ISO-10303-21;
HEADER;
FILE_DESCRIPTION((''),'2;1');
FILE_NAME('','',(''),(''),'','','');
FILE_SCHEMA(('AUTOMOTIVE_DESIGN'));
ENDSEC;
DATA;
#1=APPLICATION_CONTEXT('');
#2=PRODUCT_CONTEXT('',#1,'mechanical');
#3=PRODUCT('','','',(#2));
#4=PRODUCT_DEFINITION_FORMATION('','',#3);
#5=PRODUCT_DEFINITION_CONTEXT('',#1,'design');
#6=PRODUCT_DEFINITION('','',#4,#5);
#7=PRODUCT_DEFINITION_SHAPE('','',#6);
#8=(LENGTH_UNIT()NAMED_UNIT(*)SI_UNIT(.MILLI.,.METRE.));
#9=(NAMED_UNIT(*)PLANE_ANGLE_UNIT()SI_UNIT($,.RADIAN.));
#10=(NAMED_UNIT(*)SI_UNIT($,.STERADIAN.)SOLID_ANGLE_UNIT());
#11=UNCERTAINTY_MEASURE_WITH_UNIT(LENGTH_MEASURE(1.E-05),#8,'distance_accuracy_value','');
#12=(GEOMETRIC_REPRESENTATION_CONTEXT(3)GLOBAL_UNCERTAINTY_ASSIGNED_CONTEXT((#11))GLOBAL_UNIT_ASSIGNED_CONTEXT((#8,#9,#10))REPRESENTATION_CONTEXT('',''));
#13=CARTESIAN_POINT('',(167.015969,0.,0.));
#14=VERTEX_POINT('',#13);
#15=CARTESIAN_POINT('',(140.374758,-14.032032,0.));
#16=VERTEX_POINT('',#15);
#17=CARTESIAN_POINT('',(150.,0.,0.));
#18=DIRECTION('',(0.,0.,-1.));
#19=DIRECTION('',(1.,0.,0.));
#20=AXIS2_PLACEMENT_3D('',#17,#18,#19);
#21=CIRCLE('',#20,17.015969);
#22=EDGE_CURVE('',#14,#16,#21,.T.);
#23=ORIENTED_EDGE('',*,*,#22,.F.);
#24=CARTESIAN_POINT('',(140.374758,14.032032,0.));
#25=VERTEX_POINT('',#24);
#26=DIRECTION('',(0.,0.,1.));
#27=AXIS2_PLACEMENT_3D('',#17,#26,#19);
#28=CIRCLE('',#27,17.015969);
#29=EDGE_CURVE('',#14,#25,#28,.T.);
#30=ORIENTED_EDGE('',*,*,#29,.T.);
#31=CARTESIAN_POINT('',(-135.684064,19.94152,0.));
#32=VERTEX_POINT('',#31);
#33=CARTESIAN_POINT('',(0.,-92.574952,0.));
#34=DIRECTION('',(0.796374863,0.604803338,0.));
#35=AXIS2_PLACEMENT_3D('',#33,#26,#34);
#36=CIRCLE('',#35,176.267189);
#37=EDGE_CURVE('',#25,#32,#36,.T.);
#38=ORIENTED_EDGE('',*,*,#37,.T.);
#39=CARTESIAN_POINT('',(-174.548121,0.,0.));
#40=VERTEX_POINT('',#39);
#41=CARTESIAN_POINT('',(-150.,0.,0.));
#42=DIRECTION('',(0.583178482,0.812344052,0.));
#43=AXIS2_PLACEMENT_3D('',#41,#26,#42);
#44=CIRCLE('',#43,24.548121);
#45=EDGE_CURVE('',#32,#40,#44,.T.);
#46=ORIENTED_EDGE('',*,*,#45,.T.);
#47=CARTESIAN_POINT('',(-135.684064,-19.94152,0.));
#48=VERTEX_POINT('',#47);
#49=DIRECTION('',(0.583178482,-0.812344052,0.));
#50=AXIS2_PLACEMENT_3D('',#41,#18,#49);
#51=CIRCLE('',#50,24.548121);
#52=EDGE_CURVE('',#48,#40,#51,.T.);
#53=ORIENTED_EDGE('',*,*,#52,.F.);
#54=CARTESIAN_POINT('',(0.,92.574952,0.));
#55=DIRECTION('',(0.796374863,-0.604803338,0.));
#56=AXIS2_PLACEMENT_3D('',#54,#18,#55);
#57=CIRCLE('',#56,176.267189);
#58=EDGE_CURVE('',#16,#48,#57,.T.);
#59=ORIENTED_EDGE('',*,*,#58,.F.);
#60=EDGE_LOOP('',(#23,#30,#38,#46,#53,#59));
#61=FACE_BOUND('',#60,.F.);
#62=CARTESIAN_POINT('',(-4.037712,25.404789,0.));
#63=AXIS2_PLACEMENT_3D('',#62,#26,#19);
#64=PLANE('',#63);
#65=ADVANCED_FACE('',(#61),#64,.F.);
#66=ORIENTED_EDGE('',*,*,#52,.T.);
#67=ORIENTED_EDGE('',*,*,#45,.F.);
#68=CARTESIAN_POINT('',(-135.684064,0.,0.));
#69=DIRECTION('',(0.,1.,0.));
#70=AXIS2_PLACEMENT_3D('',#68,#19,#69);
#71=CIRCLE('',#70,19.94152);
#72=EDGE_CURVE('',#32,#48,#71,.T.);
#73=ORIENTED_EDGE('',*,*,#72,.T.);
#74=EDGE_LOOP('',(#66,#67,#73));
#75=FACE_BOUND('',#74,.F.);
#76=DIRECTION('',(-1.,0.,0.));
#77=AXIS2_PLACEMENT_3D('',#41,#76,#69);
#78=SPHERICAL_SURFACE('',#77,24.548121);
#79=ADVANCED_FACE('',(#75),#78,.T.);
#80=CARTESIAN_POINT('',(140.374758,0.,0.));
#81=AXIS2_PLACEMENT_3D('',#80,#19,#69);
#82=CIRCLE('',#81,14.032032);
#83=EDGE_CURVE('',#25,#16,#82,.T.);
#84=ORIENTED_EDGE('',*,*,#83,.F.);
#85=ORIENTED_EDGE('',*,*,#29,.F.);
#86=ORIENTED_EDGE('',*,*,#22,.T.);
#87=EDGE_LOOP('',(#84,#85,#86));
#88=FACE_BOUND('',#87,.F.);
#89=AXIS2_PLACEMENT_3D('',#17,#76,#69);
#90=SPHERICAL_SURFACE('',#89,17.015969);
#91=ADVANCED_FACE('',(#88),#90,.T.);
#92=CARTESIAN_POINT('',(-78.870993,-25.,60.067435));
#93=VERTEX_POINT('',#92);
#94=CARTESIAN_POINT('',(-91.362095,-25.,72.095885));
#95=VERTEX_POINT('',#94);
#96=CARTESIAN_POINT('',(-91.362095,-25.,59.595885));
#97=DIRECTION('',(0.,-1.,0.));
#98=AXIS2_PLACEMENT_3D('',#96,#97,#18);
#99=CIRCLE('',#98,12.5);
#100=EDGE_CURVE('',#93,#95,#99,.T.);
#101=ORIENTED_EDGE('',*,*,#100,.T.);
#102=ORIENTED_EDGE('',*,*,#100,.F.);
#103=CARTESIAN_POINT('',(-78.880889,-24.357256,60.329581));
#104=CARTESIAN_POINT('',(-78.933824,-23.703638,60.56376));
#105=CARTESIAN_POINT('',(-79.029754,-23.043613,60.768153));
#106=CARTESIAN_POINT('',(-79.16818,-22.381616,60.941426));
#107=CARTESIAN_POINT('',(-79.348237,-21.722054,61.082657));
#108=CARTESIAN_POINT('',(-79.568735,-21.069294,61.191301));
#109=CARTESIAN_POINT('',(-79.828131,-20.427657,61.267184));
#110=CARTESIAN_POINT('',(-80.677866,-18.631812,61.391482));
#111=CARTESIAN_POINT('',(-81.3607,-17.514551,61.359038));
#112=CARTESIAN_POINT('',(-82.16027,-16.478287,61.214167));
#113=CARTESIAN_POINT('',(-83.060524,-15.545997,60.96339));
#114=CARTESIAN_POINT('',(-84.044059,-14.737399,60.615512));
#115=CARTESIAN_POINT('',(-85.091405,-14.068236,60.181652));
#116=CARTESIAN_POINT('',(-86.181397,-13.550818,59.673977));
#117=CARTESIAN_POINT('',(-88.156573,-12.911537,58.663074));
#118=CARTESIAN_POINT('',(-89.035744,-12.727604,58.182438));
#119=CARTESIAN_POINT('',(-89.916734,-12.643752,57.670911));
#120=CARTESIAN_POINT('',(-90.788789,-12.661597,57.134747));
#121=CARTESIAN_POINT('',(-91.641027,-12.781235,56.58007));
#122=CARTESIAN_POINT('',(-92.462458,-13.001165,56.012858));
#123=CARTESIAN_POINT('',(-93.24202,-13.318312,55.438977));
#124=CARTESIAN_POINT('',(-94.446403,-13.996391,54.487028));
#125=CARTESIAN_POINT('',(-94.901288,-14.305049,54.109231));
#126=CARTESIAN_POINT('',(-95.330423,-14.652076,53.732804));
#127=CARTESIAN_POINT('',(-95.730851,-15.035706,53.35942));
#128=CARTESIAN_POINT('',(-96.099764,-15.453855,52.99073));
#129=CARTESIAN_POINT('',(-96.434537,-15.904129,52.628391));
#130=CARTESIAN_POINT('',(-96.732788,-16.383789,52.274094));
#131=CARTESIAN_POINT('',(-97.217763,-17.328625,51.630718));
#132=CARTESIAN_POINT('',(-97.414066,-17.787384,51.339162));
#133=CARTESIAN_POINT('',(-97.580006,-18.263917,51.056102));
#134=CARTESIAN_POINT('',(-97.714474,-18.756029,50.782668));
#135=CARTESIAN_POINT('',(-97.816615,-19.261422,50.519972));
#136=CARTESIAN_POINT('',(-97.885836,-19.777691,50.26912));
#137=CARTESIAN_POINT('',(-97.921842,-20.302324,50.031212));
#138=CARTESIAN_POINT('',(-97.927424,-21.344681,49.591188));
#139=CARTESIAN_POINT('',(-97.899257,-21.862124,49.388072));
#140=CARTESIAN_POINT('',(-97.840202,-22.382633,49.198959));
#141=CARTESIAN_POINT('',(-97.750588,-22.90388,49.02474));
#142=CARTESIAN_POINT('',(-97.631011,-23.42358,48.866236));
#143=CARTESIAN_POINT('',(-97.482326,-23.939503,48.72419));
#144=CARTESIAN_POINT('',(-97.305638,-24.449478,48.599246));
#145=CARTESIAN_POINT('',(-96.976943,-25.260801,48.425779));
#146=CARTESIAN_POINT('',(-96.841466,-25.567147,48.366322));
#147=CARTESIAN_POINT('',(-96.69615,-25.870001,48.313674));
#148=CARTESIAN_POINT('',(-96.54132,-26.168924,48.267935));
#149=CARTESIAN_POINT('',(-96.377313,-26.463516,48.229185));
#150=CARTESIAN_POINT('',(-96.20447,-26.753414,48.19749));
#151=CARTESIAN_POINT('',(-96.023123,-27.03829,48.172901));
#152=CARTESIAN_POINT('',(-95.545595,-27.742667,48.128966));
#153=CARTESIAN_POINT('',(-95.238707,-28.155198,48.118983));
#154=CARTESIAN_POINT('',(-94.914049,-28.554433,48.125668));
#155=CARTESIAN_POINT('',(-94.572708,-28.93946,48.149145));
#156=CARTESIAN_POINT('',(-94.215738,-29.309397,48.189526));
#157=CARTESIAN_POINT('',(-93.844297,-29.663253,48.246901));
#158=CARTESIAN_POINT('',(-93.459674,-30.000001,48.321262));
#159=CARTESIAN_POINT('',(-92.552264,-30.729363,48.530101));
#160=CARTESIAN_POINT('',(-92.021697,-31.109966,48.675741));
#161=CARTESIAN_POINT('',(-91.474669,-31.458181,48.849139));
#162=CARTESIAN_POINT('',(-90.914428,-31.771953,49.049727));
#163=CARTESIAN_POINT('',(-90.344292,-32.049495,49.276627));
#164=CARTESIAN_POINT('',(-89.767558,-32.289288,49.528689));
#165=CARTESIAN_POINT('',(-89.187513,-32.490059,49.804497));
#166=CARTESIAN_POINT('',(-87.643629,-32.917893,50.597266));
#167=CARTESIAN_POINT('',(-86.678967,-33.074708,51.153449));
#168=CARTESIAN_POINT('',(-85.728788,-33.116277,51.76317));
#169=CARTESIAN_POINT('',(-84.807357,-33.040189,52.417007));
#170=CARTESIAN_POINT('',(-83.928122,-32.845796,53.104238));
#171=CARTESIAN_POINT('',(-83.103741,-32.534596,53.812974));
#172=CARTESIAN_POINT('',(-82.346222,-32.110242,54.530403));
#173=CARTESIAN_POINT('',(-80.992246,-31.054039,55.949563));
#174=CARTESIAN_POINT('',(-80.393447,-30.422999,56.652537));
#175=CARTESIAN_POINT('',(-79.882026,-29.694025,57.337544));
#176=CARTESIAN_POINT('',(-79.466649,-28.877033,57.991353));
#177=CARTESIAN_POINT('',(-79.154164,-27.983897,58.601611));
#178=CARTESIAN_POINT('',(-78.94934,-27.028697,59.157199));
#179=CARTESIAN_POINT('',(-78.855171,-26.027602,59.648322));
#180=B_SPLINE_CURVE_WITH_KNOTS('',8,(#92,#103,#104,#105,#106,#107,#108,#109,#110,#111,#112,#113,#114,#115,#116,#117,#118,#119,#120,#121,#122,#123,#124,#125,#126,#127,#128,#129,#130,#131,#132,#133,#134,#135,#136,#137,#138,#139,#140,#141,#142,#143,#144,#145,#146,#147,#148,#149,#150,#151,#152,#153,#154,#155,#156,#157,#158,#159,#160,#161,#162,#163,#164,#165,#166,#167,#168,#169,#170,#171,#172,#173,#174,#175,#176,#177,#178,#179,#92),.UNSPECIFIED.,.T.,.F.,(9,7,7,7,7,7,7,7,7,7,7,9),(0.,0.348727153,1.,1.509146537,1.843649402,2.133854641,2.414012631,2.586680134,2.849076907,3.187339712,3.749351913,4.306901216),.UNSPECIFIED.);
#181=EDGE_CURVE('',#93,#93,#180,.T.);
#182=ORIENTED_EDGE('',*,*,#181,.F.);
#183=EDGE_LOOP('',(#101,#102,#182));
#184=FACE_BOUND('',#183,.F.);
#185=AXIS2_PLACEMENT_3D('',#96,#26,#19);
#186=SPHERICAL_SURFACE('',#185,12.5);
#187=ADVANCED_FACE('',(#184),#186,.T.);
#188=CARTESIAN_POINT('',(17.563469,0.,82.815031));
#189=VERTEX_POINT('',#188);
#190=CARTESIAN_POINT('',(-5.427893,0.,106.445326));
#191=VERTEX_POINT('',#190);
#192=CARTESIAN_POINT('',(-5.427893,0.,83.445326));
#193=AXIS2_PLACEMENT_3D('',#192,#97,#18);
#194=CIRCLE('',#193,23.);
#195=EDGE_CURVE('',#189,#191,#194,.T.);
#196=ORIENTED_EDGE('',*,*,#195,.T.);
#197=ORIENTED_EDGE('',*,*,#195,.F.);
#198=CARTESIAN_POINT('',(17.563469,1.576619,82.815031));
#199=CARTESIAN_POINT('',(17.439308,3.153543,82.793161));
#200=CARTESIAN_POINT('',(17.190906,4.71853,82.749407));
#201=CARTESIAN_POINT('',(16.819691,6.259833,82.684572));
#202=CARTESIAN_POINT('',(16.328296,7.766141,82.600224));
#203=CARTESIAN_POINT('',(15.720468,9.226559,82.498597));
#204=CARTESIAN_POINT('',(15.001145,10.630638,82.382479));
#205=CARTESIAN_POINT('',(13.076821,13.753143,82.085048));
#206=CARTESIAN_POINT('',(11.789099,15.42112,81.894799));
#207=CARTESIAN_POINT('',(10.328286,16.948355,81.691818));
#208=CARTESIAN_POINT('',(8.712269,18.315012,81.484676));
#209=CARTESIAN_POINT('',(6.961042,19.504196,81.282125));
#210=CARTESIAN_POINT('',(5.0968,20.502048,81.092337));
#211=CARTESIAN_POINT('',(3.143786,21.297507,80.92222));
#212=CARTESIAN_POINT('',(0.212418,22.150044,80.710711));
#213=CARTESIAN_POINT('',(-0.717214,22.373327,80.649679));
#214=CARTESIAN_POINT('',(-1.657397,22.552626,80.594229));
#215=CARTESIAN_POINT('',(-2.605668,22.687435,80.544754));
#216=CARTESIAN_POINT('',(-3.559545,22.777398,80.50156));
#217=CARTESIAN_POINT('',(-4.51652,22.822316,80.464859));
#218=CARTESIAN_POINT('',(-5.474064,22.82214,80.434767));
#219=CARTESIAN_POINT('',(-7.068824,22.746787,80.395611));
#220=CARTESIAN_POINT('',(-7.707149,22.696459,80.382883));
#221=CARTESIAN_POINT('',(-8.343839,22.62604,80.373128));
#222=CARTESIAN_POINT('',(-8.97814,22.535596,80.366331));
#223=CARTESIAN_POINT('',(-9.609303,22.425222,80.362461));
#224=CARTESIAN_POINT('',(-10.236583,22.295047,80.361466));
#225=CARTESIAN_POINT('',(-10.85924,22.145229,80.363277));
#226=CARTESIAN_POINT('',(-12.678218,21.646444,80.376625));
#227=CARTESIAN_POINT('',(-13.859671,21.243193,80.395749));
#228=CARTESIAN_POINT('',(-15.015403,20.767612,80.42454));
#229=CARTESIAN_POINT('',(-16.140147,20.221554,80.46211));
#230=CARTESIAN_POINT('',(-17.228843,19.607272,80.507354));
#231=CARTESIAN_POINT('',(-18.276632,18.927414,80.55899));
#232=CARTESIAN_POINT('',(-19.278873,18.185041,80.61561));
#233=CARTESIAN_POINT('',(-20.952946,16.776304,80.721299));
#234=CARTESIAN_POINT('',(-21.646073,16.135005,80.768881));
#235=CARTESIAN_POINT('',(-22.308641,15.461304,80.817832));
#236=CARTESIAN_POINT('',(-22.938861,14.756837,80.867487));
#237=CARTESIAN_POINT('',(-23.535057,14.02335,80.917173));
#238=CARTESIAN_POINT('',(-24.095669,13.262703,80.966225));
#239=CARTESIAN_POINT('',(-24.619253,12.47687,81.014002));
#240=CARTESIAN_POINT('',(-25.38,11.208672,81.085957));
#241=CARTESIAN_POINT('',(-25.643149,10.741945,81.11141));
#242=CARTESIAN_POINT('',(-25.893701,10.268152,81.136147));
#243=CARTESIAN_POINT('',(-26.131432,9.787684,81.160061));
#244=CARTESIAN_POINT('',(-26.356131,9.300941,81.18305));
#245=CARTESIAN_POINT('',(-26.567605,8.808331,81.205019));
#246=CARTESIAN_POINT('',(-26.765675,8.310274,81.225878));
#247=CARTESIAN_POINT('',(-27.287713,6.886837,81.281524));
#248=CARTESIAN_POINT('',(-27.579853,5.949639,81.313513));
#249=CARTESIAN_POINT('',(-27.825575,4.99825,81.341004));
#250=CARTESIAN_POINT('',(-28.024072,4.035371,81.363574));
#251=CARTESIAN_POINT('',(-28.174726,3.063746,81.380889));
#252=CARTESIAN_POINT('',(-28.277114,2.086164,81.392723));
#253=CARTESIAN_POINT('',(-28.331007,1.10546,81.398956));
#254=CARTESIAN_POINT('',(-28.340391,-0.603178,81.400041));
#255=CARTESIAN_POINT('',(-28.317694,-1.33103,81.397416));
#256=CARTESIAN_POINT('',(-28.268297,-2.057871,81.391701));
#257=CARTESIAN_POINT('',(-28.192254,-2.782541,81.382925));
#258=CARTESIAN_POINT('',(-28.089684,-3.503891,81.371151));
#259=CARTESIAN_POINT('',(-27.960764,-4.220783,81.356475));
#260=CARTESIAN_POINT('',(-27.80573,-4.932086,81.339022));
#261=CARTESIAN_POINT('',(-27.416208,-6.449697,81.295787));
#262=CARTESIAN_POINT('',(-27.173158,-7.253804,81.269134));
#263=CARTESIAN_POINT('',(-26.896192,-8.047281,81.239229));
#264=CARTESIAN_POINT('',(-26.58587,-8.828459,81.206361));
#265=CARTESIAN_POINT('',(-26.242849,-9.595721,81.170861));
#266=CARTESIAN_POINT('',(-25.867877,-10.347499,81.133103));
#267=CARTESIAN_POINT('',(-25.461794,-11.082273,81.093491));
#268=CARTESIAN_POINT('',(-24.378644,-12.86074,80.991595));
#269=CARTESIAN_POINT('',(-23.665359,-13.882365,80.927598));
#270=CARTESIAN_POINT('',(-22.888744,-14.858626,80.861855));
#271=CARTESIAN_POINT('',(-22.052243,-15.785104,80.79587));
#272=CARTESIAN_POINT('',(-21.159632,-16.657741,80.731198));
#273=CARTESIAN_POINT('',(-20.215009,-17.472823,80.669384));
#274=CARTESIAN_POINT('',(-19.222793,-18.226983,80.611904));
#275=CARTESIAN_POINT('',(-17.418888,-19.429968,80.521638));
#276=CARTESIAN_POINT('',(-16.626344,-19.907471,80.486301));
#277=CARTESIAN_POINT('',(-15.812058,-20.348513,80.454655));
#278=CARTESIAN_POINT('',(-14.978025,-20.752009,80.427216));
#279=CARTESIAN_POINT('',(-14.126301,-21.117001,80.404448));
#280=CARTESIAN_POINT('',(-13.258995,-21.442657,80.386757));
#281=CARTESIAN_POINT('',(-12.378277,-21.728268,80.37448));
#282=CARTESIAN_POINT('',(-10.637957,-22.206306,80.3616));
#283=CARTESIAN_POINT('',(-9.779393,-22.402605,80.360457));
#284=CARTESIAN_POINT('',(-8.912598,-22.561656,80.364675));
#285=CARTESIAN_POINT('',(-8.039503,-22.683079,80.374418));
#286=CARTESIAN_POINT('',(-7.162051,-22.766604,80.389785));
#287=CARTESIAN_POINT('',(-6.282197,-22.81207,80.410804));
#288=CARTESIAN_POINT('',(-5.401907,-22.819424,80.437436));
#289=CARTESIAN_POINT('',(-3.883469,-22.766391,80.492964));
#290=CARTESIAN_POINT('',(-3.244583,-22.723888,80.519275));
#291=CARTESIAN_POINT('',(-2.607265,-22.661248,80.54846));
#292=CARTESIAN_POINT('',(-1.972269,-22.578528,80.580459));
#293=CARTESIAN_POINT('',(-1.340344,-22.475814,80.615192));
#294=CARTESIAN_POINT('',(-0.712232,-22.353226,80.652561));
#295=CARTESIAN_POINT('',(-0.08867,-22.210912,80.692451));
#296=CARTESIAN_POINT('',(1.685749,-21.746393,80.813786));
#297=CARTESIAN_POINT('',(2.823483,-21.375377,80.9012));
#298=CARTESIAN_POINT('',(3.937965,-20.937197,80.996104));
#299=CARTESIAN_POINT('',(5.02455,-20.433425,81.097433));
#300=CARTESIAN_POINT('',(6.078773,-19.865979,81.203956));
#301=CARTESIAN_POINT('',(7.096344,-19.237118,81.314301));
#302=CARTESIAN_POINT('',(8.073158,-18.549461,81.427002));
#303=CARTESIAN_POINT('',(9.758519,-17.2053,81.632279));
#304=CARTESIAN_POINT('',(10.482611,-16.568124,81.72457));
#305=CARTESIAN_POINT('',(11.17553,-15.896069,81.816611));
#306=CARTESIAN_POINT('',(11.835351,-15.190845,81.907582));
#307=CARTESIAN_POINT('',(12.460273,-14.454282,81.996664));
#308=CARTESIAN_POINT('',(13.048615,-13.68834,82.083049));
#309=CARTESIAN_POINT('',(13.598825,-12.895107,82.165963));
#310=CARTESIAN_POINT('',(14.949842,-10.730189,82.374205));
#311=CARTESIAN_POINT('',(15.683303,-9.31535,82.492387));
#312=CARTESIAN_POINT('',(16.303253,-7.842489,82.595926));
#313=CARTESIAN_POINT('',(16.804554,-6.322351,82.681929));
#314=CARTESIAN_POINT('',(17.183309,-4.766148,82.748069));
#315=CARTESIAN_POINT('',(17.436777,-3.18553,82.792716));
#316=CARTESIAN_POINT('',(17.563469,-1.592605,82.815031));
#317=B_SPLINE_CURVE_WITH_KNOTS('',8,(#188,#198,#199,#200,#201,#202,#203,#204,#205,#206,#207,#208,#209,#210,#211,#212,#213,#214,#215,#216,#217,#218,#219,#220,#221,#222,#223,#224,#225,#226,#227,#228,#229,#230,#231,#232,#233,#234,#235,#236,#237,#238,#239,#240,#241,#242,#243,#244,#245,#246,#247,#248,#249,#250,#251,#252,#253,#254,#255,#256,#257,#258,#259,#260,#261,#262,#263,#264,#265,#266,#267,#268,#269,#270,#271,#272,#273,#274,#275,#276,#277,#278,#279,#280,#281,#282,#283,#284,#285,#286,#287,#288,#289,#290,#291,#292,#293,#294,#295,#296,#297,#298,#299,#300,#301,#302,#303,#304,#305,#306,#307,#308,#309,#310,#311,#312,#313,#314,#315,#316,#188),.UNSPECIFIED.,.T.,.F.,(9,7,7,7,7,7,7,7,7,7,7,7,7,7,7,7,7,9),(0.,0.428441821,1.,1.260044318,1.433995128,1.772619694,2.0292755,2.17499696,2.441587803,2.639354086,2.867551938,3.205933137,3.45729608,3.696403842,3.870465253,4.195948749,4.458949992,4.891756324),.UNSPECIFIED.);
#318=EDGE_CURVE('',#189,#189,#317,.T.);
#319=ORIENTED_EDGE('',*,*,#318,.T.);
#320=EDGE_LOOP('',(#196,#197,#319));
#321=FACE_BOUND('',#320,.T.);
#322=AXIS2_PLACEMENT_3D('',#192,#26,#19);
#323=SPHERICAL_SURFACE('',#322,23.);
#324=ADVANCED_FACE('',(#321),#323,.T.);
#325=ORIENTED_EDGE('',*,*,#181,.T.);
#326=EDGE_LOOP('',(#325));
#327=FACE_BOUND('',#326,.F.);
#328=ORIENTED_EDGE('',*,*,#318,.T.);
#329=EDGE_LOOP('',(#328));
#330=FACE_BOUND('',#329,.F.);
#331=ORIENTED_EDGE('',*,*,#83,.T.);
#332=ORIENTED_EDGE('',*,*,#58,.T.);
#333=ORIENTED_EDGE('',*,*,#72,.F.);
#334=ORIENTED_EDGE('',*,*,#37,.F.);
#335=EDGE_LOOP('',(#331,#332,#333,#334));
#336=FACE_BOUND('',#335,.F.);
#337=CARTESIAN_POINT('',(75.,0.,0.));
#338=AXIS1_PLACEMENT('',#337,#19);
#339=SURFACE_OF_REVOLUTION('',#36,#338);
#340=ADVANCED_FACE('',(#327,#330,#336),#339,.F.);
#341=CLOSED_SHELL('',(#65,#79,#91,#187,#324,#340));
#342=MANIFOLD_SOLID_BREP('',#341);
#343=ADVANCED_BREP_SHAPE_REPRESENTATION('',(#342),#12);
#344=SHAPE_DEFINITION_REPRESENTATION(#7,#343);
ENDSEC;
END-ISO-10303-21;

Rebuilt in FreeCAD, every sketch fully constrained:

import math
import FreeCAD as App
import Part
import Sketcher

doc = App.newDocument("Part")
body = doc.addObject("PartDesign::Body", "Body")

# Sketch on XY plane
sketch1 = body.newObject("Sketcher::SketchObject", "Sketch")
sketch1.AttachmentSupport = (doc.getObject("XY_Plane"), [""])
sketch1.MapMode = "FlatFace"
sketch1.addGeometry([
    Part.LineSegment(App.Vector(-175, 0, 0), App.Vector(167, 0, 0)),
    Part.ArcOfCircle(Part.Circle(App.Vector(150, 0, 0), App.Vector(0, 0, 1), 17), math.radians(0), math.radians(124)),
    Part.ArcOfCircle(Part.Circle(App.Vector(0, -93, 0), App.Vector(0, 0, 1), 176), math.radians(37), math.radians(140)),
    Part.ArcOfCircle(Part.Circle(App.Vector(-150, 0, 0), App.Vector(0, 0, 1), 25), math.radians(54), math.radians(180)),
], False)
sketch1.addConstraint([
    Sketcher.Constraint("Coincident", 0, 2, 1, 1),
    Sketcher.Constraint("Coincident", 1, 2, 2, 1),
    Sketcher.Constraint("Coincident", 2, 2, 3, 1),
    Sketcher.Constraint("Coincident", 3, 2, 0, 1),
    Sketcher.Constraint("Horizontal", 0),
    Sketcher.Constraint("Symmetric", 1, 3, 3, 3, -1, 1),
    Sketcher.Constraint("PointOnObject", 1, 3, -1),
    Sketcher.Constraint("PointOnObject", 2, 3, -2),
    Sketcher.Constraint("PointOnObject", 0, 2, -1),
    Sketcher.Constraint("DistanceX", -1, 1, 1, 3, 150.0),
    Sketcher.Constraint("Radius", 1, 17.015969),
    Sketcher.Constraint("Radius", 2, 176.267189),
    Sketcher.Constraint("Radius", 3, 24.548121),
    Sketcher.Constraint("DistanceX", -1, 1, 1, 2, 140.374758),
])
revolution = body.newObject("PartDesign::Revolution", "Revolution")
revolution.Profile = sketch1
revolution.ReferenceAxis = (sketch1, ["H_Axis"])
revolution.Angle = 180

# Sketch on XZ plane
sketch2 = body.newObject("Sketcher::SketchObject", "Sketch001")
sketch2.AttachmentSupport = (doc.getObject("XZ_Plane"), [""])
sketch2.MapMode = "FlatFace"
sketch2.addGeometry([
    Part.LineSegment(App.Vector(-5, 106, 0), App.Vector(-5, 60, 0)),
    Part.ArcOfCircle(Part.Circle(App.Vector(-5, 83, 0), App.Vector(0, 0, 1), 23), math.radians(-90), math.radians(90)),
], False)
sketch2.addGeometry(Part.LineSegment(App.Vector(-5, 60, 0), App.Vector(-5, 106, 0)), True)  # axis
sketch2.addConstraint([
    Sketcher.Constraint("Coincident", 0, 1, 1, 2),
    Sketcher.Constraint("Coincident", 1, 1, 0, 2),
    Sketcher.Constraint("Vertical", 0),
    Sketcher.Constraint("Vertical", 2),
    Sketcher.Constraint("Coincident", 2, 1, 1, 1),
    Sketcher.Constraint("Vertical", 1, 3, 0, 1),
    Sketcher.Constraint("Equal", 0, 2),
    Sketcher.Constraint("Radius", 1, 23.0),
    Sketcher.Constraint("DistanceX", 1, 3, -1, 1, 5.427893),
    Sketcher.Constraint("DistanceY", -1, 1, 1, 3, 83.445326),
])
revolution2 = body.newObject("PartDesign::Revolution", "Revolution001")
revolution2.Profile = sketch2
revolution2.ReferenceAxis = (sketch2, ["Axis0"])
revolution2.Angle = 360

# Sketch on XZ plane
sketch3 = body.newObject("Sketcher::SketchObject", "Sketch002")
sketch3.AttachmentSupport = (doc.getObject("XZ_Plane"), [""])
sketch3.MapMode = "FlatFace"
sketch3.AttachmentOffset = App.Placement(App.Vector(0, 0, 25), App.Rotation())
sketch3.addGeometry([
    Part.LineSegment(App.Vector(-91, 72, 0), App.Vector(-91, 47, 0)),
    Part.ArcOfCircle(Part.Circle(App.Vector(-91, 60, 0), App.Vector(0, 0, 1), 12), math.radians(-90), math.radians(90)),
], False)
sketch3.addGeometry(Part.LineSegment(App.Vector(-91, 72, 0), App.Vector(-91, 47, 0)), True)  # axis
sketch3.addConstraint([
    Sketcher.Constraint("Coincident", 0, 1, 1, 2),
    Sketcher.Constraint("Coincident", 1, 1, 0, 2),
    Sketcher.Constraint("Vertical", 0),
    Sketcher.Constraint("Vertical", 2),
    Sketcher.Constraint("Coincident", 2, 1, 0, 1),
    Sketcher.Constraint("Vertical", 1, 3, 0, 1),
    Sketcher.Constraint("Equal", 0, 2),
    Sketcher.Constraint("Radius", 1, 12.5),
    Sketcher.Constraint("DistanceX", 1, 3, -1, 1, 91.362095),
    Sketcher.Constraint("DistanceY", -1, 1, 1, 3, 59.595885),
])
revolution3 = body.newObject("PartDesign::Revolution", "Revolution002")
revolution3.Profile = sketch3
revolution3.ReferenceAxis = (sketch3, ["Axis0"])
revolution3.Angle = 360

doc.recompute()
